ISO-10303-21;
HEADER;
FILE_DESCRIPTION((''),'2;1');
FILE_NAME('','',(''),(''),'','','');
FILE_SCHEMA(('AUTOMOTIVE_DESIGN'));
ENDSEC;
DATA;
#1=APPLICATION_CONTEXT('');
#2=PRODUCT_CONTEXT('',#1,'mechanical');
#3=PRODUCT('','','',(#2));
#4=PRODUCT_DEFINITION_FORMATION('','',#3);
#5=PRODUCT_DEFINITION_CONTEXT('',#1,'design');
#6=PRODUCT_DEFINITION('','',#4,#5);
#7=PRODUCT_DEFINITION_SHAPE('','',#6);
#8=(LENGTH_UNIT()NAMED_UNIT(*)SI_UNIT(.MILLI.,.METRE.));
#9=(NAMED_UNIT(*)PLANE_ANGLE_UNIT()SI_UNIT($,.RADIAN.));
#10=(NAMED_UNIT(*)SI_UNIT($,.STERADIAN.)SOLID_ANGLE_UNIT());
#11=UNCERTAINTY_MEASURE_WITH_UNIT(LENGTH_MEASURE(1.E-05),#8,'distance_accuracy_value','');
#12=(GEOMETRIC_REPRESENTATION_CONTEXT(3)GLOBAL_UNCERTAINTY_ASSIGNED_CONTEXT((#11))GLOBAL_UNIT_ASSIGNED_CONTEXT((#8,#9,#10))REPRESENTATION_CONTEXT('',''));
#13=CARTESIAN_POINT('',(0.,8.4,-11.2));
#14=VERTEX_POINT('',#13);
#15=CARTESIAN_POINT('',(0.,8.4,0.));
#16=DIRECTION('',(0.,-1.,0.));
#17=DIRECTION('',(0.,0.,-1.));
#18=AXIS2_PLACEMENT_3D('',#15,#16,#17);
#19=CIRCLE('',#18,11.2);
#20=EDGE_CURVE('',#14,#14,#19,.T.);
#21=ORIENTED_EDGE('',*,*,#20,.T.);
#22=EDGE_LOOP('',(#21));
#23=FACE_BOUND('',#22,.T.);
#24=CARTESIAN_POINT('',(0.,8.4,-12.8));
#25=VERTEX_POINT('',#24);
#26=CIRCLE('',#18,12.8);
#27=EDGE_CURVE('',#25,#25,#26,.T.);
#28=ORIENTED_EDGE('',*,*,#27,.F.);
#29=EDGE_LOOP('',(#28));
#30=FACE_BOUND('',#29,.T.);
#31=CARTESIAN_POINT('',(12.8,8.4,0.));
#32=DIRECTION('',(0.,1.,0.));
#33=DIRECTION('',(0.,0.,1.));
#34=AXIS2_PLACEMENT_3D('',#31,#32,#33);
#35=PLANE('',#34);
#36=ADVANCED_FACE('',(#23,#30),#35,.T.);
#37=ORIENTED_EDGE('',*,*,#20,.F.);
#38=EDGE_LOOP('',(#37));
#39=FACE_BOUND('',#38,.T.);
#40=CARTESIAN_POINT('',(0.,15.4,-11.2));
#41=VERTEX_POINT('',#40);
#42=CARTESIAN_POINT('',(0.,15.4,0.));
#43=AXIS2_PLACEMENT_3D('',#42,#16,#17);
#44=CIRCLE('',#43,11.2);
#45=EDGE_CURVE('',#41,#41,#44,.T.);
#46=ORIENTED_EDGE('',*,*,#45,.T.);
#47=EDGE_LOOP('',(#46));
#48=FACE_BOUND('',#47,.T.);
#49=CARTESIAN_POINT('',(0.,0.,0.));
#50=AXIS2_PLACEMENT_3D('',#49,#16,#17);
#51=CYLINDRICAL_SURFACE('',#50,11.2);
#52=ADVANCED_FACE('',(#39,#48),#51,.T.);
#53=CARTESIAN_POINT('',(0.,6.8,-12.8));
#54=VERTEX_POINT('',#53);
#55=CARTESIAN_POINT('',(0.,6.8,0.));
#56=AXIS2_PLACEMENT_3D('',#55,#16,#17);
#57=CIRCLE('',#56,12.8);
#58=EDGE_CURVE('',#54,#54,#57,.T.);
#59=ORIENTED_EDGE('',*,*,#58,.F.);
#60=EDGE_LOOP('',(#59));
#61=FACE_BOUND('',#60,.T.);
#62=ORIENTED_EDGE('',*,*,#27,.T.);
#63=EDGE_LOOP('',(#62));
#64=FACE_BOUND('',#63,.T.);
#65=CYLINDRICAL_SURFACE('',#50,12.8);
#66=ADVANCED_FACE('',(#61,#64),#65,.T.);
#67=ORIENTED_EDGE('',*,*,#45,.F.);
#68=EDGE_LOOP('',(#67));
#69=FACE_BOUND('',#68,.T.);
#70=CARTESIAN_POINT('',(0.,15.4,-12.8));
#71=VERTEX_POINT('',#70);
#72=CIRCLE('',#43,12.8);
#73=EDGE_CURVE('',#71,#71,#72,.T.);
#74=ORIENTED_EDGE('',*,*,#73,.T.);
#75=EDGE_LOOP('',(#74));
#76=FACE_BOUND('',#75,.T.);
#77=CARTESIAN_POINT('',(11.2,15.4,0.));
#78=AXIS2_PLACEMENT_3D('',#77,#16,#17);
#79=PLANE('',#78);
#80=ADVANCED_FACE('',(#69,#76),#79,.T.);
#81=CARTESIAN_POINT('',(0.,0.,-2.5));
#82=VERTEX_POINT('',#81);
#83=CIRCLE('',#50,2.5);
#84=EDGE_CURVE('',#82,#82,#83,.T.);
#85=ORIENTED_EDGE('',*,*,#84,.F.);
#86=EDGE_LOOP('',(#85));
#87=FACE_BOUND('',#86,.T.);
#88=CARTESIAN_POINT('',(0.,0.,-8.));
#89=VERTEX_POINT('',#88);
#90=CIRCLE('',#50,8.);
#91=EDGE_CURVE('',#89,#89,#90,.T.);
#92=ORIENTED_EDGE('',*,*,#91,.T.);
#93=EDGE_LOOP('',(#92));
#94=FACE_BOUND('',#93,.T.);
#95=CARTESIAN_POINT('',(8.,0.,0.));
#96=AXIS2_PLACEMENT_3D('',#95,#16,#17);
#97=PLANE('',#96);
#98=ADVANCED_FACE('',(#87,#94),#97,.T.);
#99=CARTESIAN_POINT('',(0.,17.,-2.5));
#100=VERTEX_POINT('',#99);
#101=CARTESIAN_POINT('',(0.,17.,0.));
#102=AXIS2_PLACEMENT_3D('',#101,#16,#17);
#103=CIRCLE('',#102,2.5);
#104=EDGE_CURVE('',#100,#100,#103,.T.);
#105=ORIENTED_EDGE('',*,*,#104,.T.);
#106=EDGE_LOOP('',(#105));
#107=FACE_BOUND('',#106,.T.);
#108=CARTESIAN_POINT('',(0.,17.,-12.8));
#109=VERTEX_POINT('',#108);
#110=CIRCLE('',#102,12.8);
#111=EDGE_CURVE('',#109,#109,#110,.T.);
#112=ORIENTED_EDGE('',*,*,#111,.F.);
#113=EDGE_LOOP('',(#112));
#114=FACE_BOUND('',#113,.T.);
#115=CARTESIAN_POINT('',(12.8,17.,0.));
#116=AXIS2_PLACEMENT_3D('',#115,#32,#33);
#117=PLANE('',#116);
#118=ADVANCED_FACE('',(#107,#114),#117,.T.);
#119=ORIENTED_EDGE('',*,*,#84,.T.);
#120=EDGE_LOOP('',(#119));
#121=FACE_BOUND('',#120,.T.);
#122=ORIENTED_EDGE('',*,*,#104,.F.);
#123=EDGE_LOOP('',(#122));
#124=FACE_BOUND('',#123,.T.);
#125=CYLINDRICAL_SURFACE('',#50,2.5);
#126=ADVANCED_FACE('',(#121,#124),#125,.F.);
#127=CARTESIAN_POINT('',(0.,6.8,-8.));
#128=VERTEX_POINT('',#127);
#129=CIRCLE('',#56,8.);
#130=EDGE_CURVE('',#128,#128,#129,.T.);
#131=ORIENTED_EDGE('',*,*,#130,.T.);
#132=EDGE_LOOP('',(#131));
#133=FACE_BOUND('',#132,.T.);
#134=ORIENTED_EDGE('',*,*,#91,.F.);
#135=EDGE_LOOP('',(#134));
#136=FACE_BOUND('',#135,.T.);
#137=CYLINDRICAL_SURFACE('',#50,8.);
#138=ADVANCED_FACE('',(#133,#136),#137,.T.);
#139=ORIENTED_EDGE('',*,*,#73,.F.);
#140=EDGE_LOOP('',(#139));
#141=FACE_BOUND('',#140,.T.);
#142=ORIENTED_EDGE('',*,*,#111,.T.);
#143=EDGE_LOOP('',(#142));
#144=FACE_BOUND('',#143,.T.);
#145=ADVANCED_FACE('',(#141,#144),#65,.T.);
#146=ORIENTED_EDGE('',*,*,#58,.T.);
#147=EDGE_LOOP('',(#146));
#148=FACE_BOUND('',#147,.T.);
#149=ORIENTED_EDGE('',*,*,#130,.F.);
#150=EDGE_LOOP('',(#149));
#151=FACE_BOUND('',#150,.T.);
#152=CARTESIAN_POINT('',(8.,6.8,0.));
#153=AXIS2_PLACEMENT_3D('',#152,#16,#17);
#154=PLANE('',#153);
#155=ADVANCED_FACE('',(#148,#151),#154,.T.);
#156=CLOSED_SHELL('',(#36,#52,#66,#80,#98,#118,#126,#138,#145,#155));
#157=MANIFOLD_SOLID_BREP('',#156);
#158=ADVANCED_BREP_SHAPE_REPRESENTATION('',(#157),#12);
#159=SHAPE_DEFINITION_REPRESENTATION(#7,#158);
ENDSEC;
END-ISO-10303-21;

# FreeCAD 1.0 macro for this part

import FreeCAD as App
import Part
import Sketcher
from FreeCAD import Vector
Q = App.Units.Quantity

doc = App.newDocument("Part")
body = doc.addObject("PartDesign::Body", "Body")

# Sketch on XY plane
sketch1 = body.newObject("Sketcher::SketchObject", "Sketch")
sketch1.AttachmentSupport = (doc.getObject("XY_Plane"), [""])
sketch1.MapMode = "FlatFace"
sketch1.addGeometry([
    Part.LineSegment(Vector(8, 0, 0), Vector(8, 6.8, 0)),  # 0
    Part.LineSegment(Vector(8, 6.8, 0), Vector(12.8, 6.8, 0)),  # 1
    Part.LineSegment(Vector(12.8, 6.8, 0), Vector(12.8, 8.4, 0)),  # 2
    Part.LineSegment(Vector(12.8, 8.4, 0), Vector(11.2, 8.4, 0)),  # 3
    Part.LineSegment(Vector(11.2, 8.4, 0), Vector(11.2, 15.4, 0)),  # 4
    Part.LineSegment(Vector(11.2, 15.4, 0), Vector(12.8, 15.4, 0)),  # 5
    Part.LineSegment(Vector(12.8, 15.4, 0), Vector(12.8, 17, 0)),  # 6
    Part.LineSegment(Vector(12.8, 17, 0), Vector(2.5, 17, 0)),  # 7
    Part.LineSegment(Vector(2.5, 17, 0), Vector(2.5, 0, 0)),  # 8
    Part.LineSegment(Vector(2.5, 0, 0), Vector(8, 0, 0)),  # 9
], False)
sketch1.addConstraint([
    Sketcher.Constraint("Coincident", 0, 2, 1, 1),
    Sketcher.Constraint("Coincident", 1, 2, 2, 1),
    Sketcher.Constraint("Coincident", 2, 2, 3, 1),
    Sketcher.Constraint("Coincident", 3, 2, 4, 1),
    Sketcher.Constraint("Coincident", 4, 2, 5, 1),
    Sketcher.Constraint("Coincident", 5, 2, 6, 1),
    Sketcher.Constraint("Coincident", 6, 2, 7, 1),
    Sketcher.Constraint("Coincident", 7, 2, 8, 1),
    Sketcher.Constraint("Coincident", 8, 2, 9, 1),
    Sketcher.Constraint("Coincident", 9, 2, 0, 1),
    Sketcher.Constraint("Vertical", 0),
    Sketcher.Constraint("Horizontal", 1),
    Sketcher.Constraint("Vertical", 2),
    Sketcher.Constraint("Horizontal", 3),
    Sketcher.Constraint("Vertical", 4),
    Sketcher.Constraint("Horizontal", 5),
    Sketcher.Constraint("Vertical", 6),
    Sketcher.Constraint("Horizontal", 7),
    Sketcher.Constraint("Vertical", 8),
    Sketcher.Constraint("Horizontal", 9),
    Sketcher.Constraint("PointOnObject", 8, 2, -1),
    Sketcher.Constraint("Vertical", 2, 2, 5, 2),
    Sketcher.Constraint("Equal", 5, 2),
    Sketcher.Constraint("Equal", 2, 6),
    Sketcher.Constraint("DistanceY", 4, 1, 4, 2, Q("7 mm")),
    Sketcher.Constraint("DistanceY", 8, 2, 8, 1, Q("17 mm")),
    Sketcher.Constraint("DistanceX", 1, 1, 1, 2, Q("4.8 mm")),
    Sketcher.Constraint("DistanceX", 3, 2, 3, 1, Q("1.6 mm")),
    Sketcher.Constraint("DistanceX", 7, 2, 7, 1, Q("10.3 mm")),
    Sketcher.Constraint("DistanceX", -1, 1, 0, 2, Q("8 mm")),
])
revolution = body.newObject("PartDesign::Revolution", "Revolution")
revolution.Profile = sketch1
revolution.ReferenceAxis = (sketch1, ["V_Axis"])
revolution.Angle = 360

doc.recompute()
